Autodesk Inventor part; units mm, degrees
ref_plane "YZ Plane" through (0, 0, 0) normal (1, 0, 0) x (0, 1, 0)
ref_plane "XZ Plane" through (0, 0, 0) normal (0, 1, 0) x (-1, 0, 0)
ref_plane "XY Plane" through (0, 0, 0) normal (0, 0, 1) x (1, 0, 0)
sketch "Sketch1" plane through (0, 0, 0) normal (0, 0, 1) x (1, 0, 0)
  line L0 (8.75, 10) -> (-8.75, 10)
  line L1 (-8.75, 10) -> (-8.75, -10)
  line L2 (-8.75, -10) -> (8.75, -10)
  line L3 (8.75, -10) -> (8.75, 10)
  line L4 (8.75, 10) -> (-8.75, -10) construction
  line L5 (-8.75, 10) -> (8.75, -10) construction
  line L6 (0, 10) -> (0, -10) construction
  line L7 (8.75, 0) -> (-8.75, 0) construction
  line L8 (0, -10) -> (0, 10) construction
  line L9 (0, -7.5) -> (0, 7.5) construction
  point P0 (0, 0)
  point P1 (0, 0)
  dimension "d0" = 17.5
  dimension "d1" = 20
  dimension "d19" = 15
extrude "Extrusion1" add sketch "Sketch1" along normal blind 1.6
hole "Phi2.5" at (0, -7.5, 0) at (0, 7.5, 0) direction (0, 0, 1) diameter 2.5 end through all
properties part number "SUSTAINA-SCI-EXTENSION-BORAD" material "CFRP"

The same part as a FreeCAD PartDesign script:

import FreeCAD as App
import Part
import Sketcher
from FreeCAD import Vector


def add_polygon(sketch, points):
    """Adds a closed chain of lines whose ends are joined by coincident constraints."""
    first, n = sketch.GeometryCount, len(points)
    for a, b in zip(points, points[1:] + points[:1]):
        sketch.addGeometry(Part.LineSegment(App.Vector(*a, 0), App.Vector(*b, 0)), False)
    for i in range(n):
        sketch.addConstraint(Sketcher.Constraint("Coincident", first + i, 2, first + (i + 1) % n, 1))

doc = App.newDocument("Part")
body = doc.addObject("PartDesign::Body", "Body")

# Sketch on XY plane
sketch1 = doc.addObject("Sketcher::SketchObject", "Sketch")
body.addObject(sketch1)
sketch1.AttachmentSupport = (doc.XY_Plane, [""])
sketch1.MapMode = "FlatFace"
add_polygon(sketch1, [(9, -10), (9, 10), (-9, 10), (-9, -10)])  # lines 0-3
sketch1.addConstraint([
    Sketcher.Constraint("Vertical", 0),
    Sketcher.Constraint("Horizontal", 1),
    Sketcher.Constraint("Vertical", 2),
    Sketcher.Constraint("Horizontal", 3),
    Sketcher.Constraint("Symmetric", 0, 2, 2, 2, -1, 1),
    Sketcher.Constraint("DistanceY", 0, 1, 0, 2, 20.0),
    Sketcher.Constraint("DistanceX", 1, 2, 1, 1, 17.5),
])
pad1 = doc.addObject("PartDesign::Pad", "Pad")
body.addObject(pad1)
pad1.Profile = sketch1
pad1.Length = 1.6

# Sketch on XY plane
sketch2 = doc.addObject("Sketcher::SketchObject", "Sketch001")
body.addObject(sketch2)
sketch2.AttachmentSupport = (doc.XY_Plane, [""])
sketch2.MapMode = "FlatFace"
sketch2.addGeometry([
    Part.Circle(Vector(0, -7.5, 0), Vector(0, 0, 1), 1.2),
    Part.Circle(Vector(0, 7.5, 0), Vector(0, 0, 1), 1.2),
], False)
sketch2.addConstraint([
    Sketcher.Constraint("Equal", 0, 1),
    Sketcher.Constraint("Symmetric", 0, 3, 1, 3, -1, 1),
    Sketcher.Constraint("PointOnObject", 0, 3, -2),
    Sketcher.Constraint("Diameter", 0, 2.5),
    Sketcher.Constraint("DistanceY", 0, 3, 1, 3, 15.0),
])
doc.recompute()
hole = doc.addObject("PartDesign::Hole", "Hole")
body.addObject(hole)
hole.Profile = sketch2
hole.ThreadType = "None"
hole.Diameter = 2.5
hole.DepthType = "ThroughAll"
hole.Reversed = True

doc.recompute()
